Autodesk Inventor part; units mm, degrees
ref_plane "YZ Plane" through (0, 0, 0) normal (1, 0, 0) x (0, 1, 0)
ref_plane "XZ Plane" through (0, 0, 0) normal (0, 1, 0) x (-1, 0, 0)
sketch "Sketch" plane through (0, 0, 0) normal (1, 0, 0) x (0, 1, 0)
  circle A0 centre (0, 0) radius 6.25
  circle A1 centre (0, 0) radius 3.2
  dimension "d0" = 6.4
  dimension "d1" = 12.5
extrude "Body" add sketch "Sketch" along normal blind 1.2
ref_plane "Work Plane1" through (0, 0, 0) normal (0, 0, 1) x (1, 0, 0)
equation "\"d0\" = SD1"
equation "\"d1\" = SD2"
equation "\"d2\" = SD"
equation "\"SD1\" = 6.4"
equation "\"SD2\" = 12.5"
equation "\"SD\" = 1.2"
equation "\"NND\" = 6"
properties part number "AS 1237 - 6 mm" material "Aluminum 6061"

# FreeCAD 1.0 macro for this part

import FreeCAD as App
import Part
import Sketcher
from FreeCAD import Vector

doc = App.newDocument("Part")
body = doc.addObject("PartDesign::Body", "Body")

# Sketch on YZ plane
sketch1 = doc.addObject("Sketcher::SketchObject", "Sketch")
body.addObject(sketch1)
sketch1.AttachmentSupport = (doc.YZ_Plane, [""])
sketch1.MapMode = "FlatFace"
sketch1.addGeometry(Part.Circle(Vector(0, 0, 0), Vector(0, 0, 1), 6.25), False)
sketch1.addGeometry(Part.Circle(Vector(0, 0, 0), Vector(0, 0, 1), 3.2), False)
sketch1.addConstraint(Sketcher.Constraint("Coincident", 0, 3, -1, 1))
sketch1.addConstraint(Sketcher.Constraint("Coincident", 1, 3, -1, 1))
sketch1.addConstraint(Sketcher.Constraint("Diameter", 0, 12.5))
sketch1.addConstraint(Sketcher.Constraint("Diameter", 1, 6.4))
pad1 = doc.addObject("PartDesign::Pad", "Pad")
body.addObject(pad1)
pad1.Profile = sketch1
pad1.Length = 1.2

doc.recompute()
